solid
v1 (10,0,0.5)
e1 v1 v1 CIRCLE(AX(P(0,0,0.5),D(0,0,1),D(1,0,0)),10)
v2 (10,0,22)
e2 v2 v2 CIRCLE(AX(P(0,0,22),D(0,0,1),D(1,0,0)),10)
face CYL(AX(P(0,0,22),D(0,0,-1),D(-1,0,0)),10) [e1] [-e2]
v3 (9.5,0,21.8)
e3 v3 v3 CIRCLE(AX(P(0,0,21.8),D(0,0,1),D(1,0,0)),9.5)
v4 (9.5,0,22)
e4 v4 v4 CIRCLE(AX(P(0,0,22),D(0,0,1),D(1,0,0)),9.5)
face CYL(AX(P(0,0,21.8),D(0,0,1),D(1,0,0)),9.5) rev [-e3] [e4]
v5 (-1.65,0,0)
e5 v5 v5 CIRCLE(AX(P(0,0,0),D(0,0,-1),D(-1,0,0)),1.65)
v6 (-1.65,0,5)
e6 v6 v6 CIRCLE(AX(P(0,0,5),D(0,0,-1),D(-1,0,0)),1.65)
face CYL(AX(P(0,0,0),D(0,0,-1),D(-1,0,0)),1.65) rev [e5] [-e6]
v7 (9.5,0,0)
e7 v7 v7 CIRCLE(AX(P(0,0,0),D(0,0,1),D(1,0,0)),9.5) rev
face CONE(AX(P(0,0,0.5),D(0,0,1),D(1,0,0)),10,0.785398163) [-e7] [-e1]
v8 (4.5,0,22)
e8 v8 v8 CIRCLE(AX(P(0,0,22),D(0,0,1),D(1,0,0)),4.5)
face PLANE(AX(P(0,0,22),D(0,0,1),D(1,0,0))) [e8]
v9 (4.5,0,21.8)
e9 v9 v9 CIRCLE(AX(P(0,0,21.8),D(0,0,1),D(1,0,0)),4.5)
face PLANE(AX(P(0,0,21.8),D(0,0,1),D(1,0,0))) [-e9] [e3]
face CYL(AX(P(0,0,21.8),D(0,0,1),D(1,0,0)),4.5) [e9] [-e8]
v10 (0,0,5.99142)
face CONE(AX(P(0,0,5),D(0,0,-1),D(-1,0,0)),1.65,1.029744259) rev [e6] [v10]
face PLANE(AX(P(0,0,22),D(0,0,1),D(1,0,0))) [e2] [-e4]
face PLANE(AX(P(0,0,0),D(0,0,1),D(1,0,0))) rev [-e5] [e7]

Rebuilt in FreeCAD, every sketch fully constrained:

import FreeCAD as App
import Part
import Sketcher

V = App.Vector


def edges_at(feature, points):
    """Names of the edges that pass closest to the given points."""
    edges = feature.Shape.Edges
    near = lambda p: min(range(len(edges)), key=lambda i: edges[i].distToShape(Part.Vertex(*p))[0])
    return sorted({f"Edge{near(p) + 1}" for p in points})

doc = App.newDocument("Part")
body = doc.addObject("PartDesign::Body", "Body")

sketch1 = body.newObject("Sketcher::SketchObject", "Sketch")
sketch1.AttachmentSupport = (doc.getObject("XY_Plane"), [""])
sketch1.MapMode = "FlatFace"
sketch1.addGeometry(Part.Circle(V(0, 0, 0), V(0, 0, 1), 10), False)
sketch1.addConstraint(Sketcher.Constraint("Coincident", 0, 3, -1, 1))
sketch1.addConstraint(Sketcher.Constraint("Diameter", 0, 20.0))
pad1 = body.newObject("PartDesign::Pad", "Pad")
pad1.Profile = sketch1
pad1.Length = 22

sketch2 = body.newObject("Sketcher::SketchObject", "Sketch001")
sketch2.AttachmentSupport = (doc.getObject("XY_Plane"), [""])
sketch2.MapMode = "FlatFace"
sketch2.AttachmentOffset = App.Placement(V(0, 0, 22), App.Rotation())
sketch2.addGeometry(Part.Circle(V(0, 0, 0), V(0, 0, 1), 9.5), False)
sketch2.addGeometry(Part.Circle(V(0, 0, 0), V(0, 0, 1), 4.5), False)
sketch2.addConstraint(Sketcher.Constraint("Coincident", 0, 3, -1, 1))
sketch2.addConstraint(Sketcher.Constraint("Coincident", 1, 3, -1, 1))
sketch2.addConstraint(Sketcher.Constraint("Diameter", 0, 19.0))
sketch2.addConstraint(Sketcher.Constraint("Diameter", 1, 9.0))
pocket1 = body.newObject("PartDesign::Pocket", "Pocket")
pocket1.Profile = sketch2
pocket1.Length = 0.2

sketch3 = body.newObject("Sketcher::SketchObject", "Sketch002")
sketch3.AttachmentSupport = (doc.getObject("XY_Plane"), [""])
sketch3.MapMode = "FlatFace"
sketch3.addGeometry(Part.Circle(V(0, 0, 0), V(0, 0, 1), 1.65), False)
sketch3.addConstraint(Sketcher.Constraint("Coincident", 0, 3, -1, 1))
sketch3.addConstraint(Sketcher.Constraint("Diameter", 0, 3.3))
doc.recompute()
hole = body.newObject("PartDesign::Hole", "Hole")
hole.Profile = sketch3
hole.ThreadType = "None"
hole.Diameter = 3.3
hole.DepthType = "Dimension"
hole.Depth = 5
hole.DrillPoint = "Angled"
hole.DrillPointAngle = 118
hole.Reversed = True
doc.recompute()

chamfer = body.newObject("PartDesign::Chamfer", "Chamfer")
chamfer.Base = (hole, edges_at(hole, [(-10, 0, 0)]))
chamfer.Size = 0.5

doc.recompute()
